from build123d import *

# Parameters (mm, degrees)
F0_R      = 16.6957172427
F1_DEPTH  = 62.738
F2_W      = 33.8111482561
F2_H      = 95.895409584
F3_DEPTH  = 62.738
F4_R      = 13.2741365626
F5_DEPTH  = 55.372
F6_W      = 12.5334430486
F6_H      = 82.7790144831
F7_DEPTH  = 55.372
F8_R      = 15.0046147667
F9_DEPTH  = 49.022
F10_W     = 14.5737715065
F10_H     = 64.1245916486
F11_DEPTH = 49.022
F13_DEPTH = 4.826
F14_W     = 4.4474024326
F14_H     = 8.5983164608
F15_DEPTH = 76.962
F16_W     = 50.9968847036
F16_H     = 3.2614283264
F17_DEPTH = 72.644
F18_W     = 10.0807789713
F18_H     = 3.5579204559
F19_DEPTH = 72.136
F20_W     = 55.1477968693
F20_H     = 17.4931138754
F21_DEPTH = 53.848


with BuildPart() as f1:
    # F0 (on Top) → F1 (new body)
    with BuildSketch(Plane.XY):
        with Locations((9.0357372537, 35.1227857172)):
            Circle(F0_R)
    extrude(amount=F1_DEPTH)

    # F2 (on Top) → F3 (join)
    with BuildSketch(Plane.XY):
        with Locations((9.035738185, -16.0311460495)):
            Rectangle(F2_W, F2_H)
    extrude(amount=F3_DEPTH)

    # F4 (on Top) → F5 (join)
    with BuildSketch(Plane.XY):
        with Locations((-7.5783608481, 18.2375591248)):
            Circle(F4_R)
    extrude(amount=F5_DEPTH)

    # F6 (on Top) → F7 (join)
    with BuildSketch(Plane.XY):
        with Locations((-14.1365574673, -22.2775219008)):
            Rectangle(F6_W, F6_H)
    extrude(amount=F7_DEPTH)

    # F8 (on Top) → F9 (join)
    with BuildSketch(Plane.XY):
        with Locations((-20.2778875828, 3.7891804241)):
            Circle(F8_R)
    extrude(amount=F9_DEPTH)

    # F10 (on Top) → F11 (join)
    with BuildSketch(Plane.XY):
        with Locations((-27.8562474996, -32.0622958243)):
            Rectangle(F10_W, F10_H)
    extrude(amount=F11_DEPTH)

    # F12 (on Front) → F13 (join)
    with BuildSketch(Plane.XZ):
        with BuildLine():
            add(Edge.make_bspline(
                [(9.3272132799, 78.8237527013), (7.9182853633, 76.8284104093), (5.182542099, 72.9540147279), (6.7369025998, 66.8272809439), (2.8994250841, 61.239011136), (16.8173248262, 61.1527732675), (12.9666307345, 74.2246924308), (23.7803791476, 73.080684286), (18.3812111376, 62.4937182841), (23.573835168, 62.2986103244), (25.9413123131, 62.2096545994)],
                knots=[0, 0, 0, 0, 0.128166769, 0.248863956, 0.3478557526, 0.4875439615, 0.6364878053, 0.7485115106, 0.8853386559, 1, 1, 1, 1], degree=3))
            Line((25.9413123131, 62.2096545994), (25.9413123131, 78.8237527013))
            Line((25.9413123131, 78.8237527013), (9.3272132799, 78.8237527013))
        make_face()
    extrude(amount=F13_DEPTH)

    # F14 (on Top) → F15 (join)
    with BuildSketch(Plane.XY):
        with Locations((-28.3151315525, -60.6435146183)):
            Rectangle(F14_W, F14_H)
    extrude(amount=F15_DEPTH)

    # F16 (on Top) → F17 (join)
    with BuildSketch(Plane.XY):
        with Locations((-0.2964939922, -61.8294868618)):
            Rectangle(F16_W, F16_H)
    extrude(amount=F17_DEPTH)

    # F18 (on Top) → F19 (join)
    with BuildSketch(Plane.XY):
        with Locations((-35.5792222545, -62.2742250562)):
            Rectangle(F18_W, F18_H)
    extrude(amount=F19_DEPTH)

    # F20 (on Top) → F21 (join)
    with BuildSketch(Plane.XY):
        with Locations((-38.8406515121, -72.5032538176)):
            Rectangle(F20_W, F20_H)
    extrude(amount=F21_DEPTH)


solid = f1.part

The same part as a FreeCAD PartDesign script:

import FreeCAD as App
import Part
import Sketcher
Q = App.Units.Quantity

doc = App.newDocument("Part")
body = doc.addObject("PartDesign::Body", "Body")

# Sketch on XY plane
sketch1 = doc.addObject("Sketcher::SketchObject", "Sketch")
body.addObject(sketch1)
sketch1.AttachmentSupport = (doc.XY_Plane, [""])
sketch1.MapMode = "FlatFace"
sketch1.addGeometry(Part.Circle(App.Vector(9, 35, 0), App.Vector(0, 0, 1), 17), False)
sketch1.addConstraint(Sketcher.Constraint("Diameter", 0, 33.391434))
sketch1.addConstraint(Sketcher.Constraint("DistanceX", -1, 1, 0, 3, 9.035737))
sketch1.addConstraint(Sketcher.Constraint("DistanceY", -1, 1, 0, 3, 35.122786))
pad1 = doc.addObject("PartDesign::Pad", "Pad")
body.addObject(pad1)
pad1.Profile = sketch1
pad1.Length = Q("2.47 in")

# Sketch on XY plane
sketch2 = doc.addObject("Sketcher::SketchObject", "Sketch001")
body.addObject(sketch2)
sketch2.AttachmentSupport = (doc.XY_Plane, [""])
sketch2.MapMode = "FlatFace"
sketch2.addGeometry(Part.LineSegment(App.Vector(-8, 32, 0), App.Vector(-8, -64, 0)), False)
sketch2.addGeometry(Part.LineSegment(App.Vector(-8, -64, 0), App.Vector(26, -64, 0)), False)
sketch2.addGeometry(Part.LineSegment(App.Vector(26, -64, 0), App.Vector(26, 32, 0)), False)
sketch2.addGeometry(Part.LineSegment(App.Vector(26, 32, 0), App.Vector(-8, 32, 0)), False)
sketch2.addConstraint(Sketcher.Constraint("Coincident", 0, 2, 1, 1))
sketch2.addConstraint(Sketcher.Constraint("Coincident", 1, 2, 2, 1))
sketch2.addConstraint(Sketcher.Constraint("Coincident", 2, 2, 3, 1))
sketch2.addConstraint(Sketcher.Constraint("Coincident", 3, 2, 0, 1))
sketch2.addConstraint(Sketcher.Constraint("Vertical", 0))
sketch2.addConstraint(Sketcher.Constraint("Horizontal", 1))
sketch2.addConstraint(Sketcher.Constraint("Vertical", 2))
sketch2.addConstraint(Sketcher.Constraint("Horizontal", 3))
sketch2.addConstraint(Sketcher.Constraint("DistanceX", 1, 1, 1, 2, 33.811148))
sketch2.addConstraint(Sketcher.Constraint("DistanceY", 0, 2, 0, 1, 95.89541))
sketch2.addConstraint(Sketcher.Constraint("DistanceY", 0, 2, -1, 1, 63.978851))
sketch2.addConstraint(Sketcher.Constraint("DistanceX", 0, 2, -1, 1, 7.869836))
pad2 = doc.addObject("PartDesign::Pad", "Pad001")
body.addObject(pad2)
pad2.Profile = sketch2
pad2.Length = Q("2.47 in")

# Sketch on XY plane
sketch3 = doc.addObject("Sketcher::SketchObject", "Sketch002")
body.addObject(sketch3)
sketch3.AttachmentSupport = (doc.XY_Plane, [""])
sketch3.MapMode = "FlatFace"
sketch3.addGeometry(Part.Circle(App.Vector(-8, 18, 0), App.Vector(0, 0, 1), 13), False)
sketch3.addConstraint(Sketcher.Constraint("Diameter", 0, 26.548273))
sketch3.addConstraint(Sketcher.Constraint("DistanceX", 0, 3, -1, 1, 7.578361))
sketch3.addConstraint(Sketcher.Constraint("DistanceY", -1, 1, 0, 3, 18.237559))
pad3 = doc.addObject("PartDesign::Pad", "Pad002")
body.addObject(pad3)
pad3.Profile = sketch3
pad3.Length = Q("2.18 in")

# Sketch on XY plane
sketch4 = doc.addObject("Sketcher::SketchObject", "Sketch003")
body.addObject(sketch4)
sketch4.AttachmentSupport = (doc.XY_Plane, [""])
sketch4.MapMode = "FlatFace"
sketch4.addGeometry(Part.LineSegment(App.Vector(-20, 19, 0), App.Vector(-20, -64, 0)), False)
sketch4.addGeometry(Part.LineSegment(App.Vector(-20, -64, 0), App.Vector(-8, -64, 0)), False)
sketch4.addGeometry(Part.LineSegment(App.Vector(-8, -64, 0), App.Vector(-8, 19, 0)), False)
sketch4.addGeometry(Part.LineSegment(App.Vector(-8, 19, 0), App.Vector(-20, 19, 0)), False)
sketch4.addConstraint(Sketcher.Constraint("Coincident", 0, 2, 1, 1))
sketch4.addConstraint(Sketcher.Constraint("Coincident", 1, 2, 2, 1))
sketch4.addConstraint(Sketcher.Constraint("Coincident", 2, 2, 3, 1))
sketch4.addConstraint(Sketcher.Constraint("Coincident", 3, 2, 0, 1))
sketch4.addConstraint(Sketcher.Constraint("Vertical", 0))
sketch4.addConstraint(Sketcher.Constraint("Horizontal", 1))
sketch4.addConstraint(Sketcher.Constraint("Vertical", 2))
sketch4.addConstraint(Sketcher.Constraint("Horizontal", 3))
sketch4.addConstraint(Sketcher.Constraint("DistanceX", 1, 1, 1, 2, 12.533443))
sketch4.addConstraint(Sketcher.Constraint("DistanceY", 0, 2, 0, 1, 82.779014))
sketch4.addConstraint(Sketcher.Constraint("DistanceX", 0, 2, -1, 1, 20.403279))
sketch4.addConstraint(Sketcher.Constraint("DistanceY", 0, 2, -1, 1, 63.667029))
pad4 = doc.addObject("PartDesign::Pad", "Pad003")
body.addObject(pad4)
pad4.Profile = sketch4
pad4.Length = Q("2.18 in")

# Sketch on XY plane
sketch5 = doc.addObject("Sketcher::SketchObject", "Sketch004")
body.addObject(sketch5)
sketch5.AttachmentSupport = (doc.XY_Plane, [""])
sketch5.MapMode = "FlatFace"
sketch5.addGeometry(Part.Circle(App.Vector(-20, 4, 0), App.Vector(0, 0, 1), 15), False)
sketch5.addConstraint(Sketcher.Constraint("Diameter", 0, 30.00923))
sketch5.addConstraint(Sketcher.Constraint("DistanceY", -1, 1, 0, 3, 3.78918))
sketch5.addConstraint(Sketcher.Constraint("DistanceX", 0, 3, -1, 1, 20.277888))
pad5 = doc.addObject("PartDesign::Pad", "Pad004")
body.addObject(pad5)
pad5.Profile = sketch5
pad5.Length = Q("1.93 in")

# Sketch on XY plane
sketch6 = doc.addObject("Sketcher::SketchObject", "Sketch005")
body.addObject(sketch6)
sketch6.AttachmentSupport = (doc.XY_Plane, [""])
sketch6.MapMode = "FlatFace"
sketch6.addGeometry(Part.LineSegment(App.Vector(-35, 0, 0), App.Vector(-35, -64, 0)), False)
sketch6.addGeometry(Part.LineSegment(App.Vector(-35, -64, 0), App.Vector(-21, -64, 0)), False)
sketch6.addGeometry(Part.LineSegment(App.Vector(-21, -64, 0), App.Vector(-21, 0, 0)), False)
sketch6.addGeometry(Part.LineSegment(App.Vector(-21, 0, 0), App.Vector(-35, 0, 0)), False)
sketch6.addConstraint(Sketcher.Constraint("Coincident", 0, 2, 1, 1))
sketch6.addConstraint(Sketcher.Constraint("Coincident", 1, 2, 2, 1))
sketch6.addConstraint(Sketcher.Constraint("Coincident", 2, 2, 3, 1))
sketch6.addConstraint(Sketcher.Constraint("Coincident", 3, 2, 0, 1))
sketch6.addConstraint(Sketcher.Constraint("Vertical", 0))
sketch6.addConstraint(Sketcher.Constraint("Horizontal", 1))
sketch6.addConstraint(Sketcher.Constraint("Vertical", 2))
sketch6.addConstraint(Sketcher.Constraint("Horizontal", 3))
sketch6.addConstraint(Sketcher.Constraint("PointOnObject", 2, 2, -1))
sketch6.addConstraint(Sketcher.Constraint("DistanceX", 1, 1, 1, 2, 14.573772))
sketch6.addConstraint(Sketcher.Constraint("DistanceY", 0, 2, 0, 1, 64.124592))
sketch6.addConstraint(Sketcher.Constraint("DistanceX", 1, 2, -1, 1, 20.569362))
pad6 = doc.addObject("PartDesign::Pad", "Pad005")
body.addObject(pad6)
pad6.Profile = sketch6
pad6.Length = Q("1.93 in")

# Sketch on XZ plane
sketch7 = doc.addObject("Sketcher::SketchObject", "Sketch006")
body.addObject(sketch7)
sketch7.AttachmentSupport = (doc.XZ_Plane, [""])
sketch7.MapMode = "FlatFace"
sketch7.addGeometry(Part.BSplineCurve([App.Vector(9.327213, 78.823753, 0), App.Vector(7.918285, 76.82841, 0), App.Vector(5.182542, 72.954015, 0), App.Vector(6.736903, 66.827281, 0), App.Vector(2.899425, 61.239011, 0), App.Vector(16.817325, 61.152773, 0), App.Vector(12.966631, 74.224692, 0), App.Vector(23.780379, 73.080684, 0), App.Vector(18.381211, 62.493718, 0), App.Vector(23.573835, 62.29861, 0), App.Vector(25.941312, 62.209655, 0)], [4, 1, 1, 1, 1, 1, 1, 1, 4], [0, 0.128166769, 0.248863956, 0.347855753, 0.487543962, 0.636487805, 0.748511511, 0.885338656, 1], False, 3, [1, 1, 1, 1, 1, 1, 1, 1, 1, 1, 1], False), False)
sketch7.addGeometry(Part.LineSegment(App.Vector(25.941312, 62.209655, 0), App.Vector(25.941312, 78.823753, 0)), False)
sketch7.addGeometry(Part.LineSegment(App.Vector(25.941312, 78.823753, 0), App.Vector(9.327213, 78.823753, 0)), False)
sketch7.addConstraint(Sketcher.Constraint("Block", 0))
sketch7.addConstraint(Sketcher.Constraint("Coincident", 0, 2, 1, 1))
sketch7.addConstraint(Sketcher.Constraint("Coincident", 1, 2, 2, 1))
sketch7.addConstraint(Sketcher.Constraint("Coincident", 2, 2, 0, 1))
sketch7.addConstraint(Sketcher.Constraint("Vertical", 1))
sketch7.addConstraint(Sketcher.Constraint("Horizontal", 2))
pad7 = doc.addObject("PartDesign::Pad", "Pad006")
body.addObject(pad7)
pad7.Profile = sketch7
pad7.Length = Q("0.19 in")

# Sketch on XY plane
sketch8 = doc.addObject("Sketcher::SketchObject", "Sketch007")
body.addObject(sketch8)
sketch8.AttachmentSupport = (doc.XY_Plane, [""])
sketch8.MapMode = "FlatFace"
sketch8.addGeometry(Part.LineSegment(App.Vector(-30.5, -56.3, 0), App.Vector(-30.5, -64.9, 0)), False)
sketch8.addGeometry(Part.LineSegment(App.Vector(-30.5, -64.9, 0), App.Vector(-26.1, -64.9, 0)), False)
sketch8.addGeometry(Part.LineSegment(App.Vector(-26.1, -64.9, 0), App.Vector(-26.1, -56.3, 0)), False)
sketch8.addGeometry(Part.LineSegment(App.Vector(-26.1, -56.3, 0), App.Vector(-30.5, -56.3, 0)), False)
sketch8.addConstraint(Sketcher.Constraint("Coincident", 0, 2, 1, 1))
sketch8.addConstraint(Sketcher.Constraint("Coincident", 1, 2, 2, 1))
sketch8.addConstraint(Sketcher.Constraint("Coincident", 2, 2, 3, 1))
sketch8.addConstraint(Sketcher.Constraint("Coincident", 3, 2, 0, 1))
sketch8.addConstraint(Sketcher.Constraint("Vertical", 0))
sketch8.addConstraint(Sketcher.Constraint("Horizontal", 1))
sketch8.addConstraint(Sketcher.Constraint("Vertical", 2))
sketch8.addConstraint(Sketcher.Constraint("Horizontal", 3))
sketch8.addConstraint(Sketcher.Constraint("DistanceX", 1, 1, 1, 2, 4.447402))
sketch8.addConstraint(Sketcher.Constraint("DistanceY", 0, 2, 0, 1, 8.598316))
sketch8.addConstraint(Sketcher.Constraint("DistanceX", 1, 2, -1, 1, 26.09143))
sketch8.addConstraint(Sketcher.Constraint("DistanceY", 0, 2, -1, 1, 64.942673))
pad8 = doc.addObject("PartDesign::Pad", "Pad007")
body.addObject(pad8)
pad8.Profile = sketch8
pad8.Length = Q("3.03 in")

# Sketch on XY plane
sketch9 = doc.addObject("Sketcher::SketchObject", "Sketch008")
body.addObject(sketch9)
sketch9.AttachmentSupport = (doc.XY_Plane, [""])
sketch9.MapMode = "FlatFace"
sketch9.addGeometry(Part.LineSegment(App.Vector(-25.8, -60.2, 0), App.Vector(-25.8, -63.5, 0)), False)
sketch9.addGeometry(Part.LineSegment(App.Vector(-25.8, -63.5, 0), App.Vector(25.2, -63.5, 0)), False)
sketch9.addGeometry(Part.LineSegment(App.Vector(25.2, -63.5, 0), App.Vector(25.2, -60.2, 0)), False)
sketch9.addGeometry(Part.LineSegment(App.Vector(25.2, -60.2, 0), App.Vector(-25.8, -60.2, 0)), False)
sketch9.addConstraint(Sketcher.Constraint("Coincident", 0, 2, 1, 1))
sketch9.addConstraint(Sketcher.Constraint("Coincident", 1, 2, 2, 1))
sketch9.addConstraint(Sketcher.Constraint("Coincident", 2, 2, 3, 1))
sketch9.addConstraint(Sketcher.Constraint("Coincident", 3, 2, 0, 1))
sketch9.addConstraint(Sketcher.Constraint("Vertical", 0))
sketch9.addConstraint(Sketcher.Constraint("Horizontal", 1))
sketch9.addConstraint(Sketcher.Constraint("Vertical", 2))
sketch9.addConstraint(Sketcher.Constraint("Horizontal", 3))
sketch9.addConstraint(Sketcher.Constraint("DistanceY", 0, 2, 0, 1, 3.261428))
sketch9.addConstraint(Sketcher.Constraint("DistanceY", 0, 2, -1, 1, 63.460201))
sketch9.addConstraint(Sketcher.Constraint("DistanceX", 1, 1, 1, 2, 50.996885))
sketch9.addConstraint(Sketcher.Constraint("DistanceX", -1, 1, 1, 2, 25.201948))
pad9 = doc.addObject("PartDesign::Pad", "Pad008")
body.addObject(pad9)
pad9.Profile = sketch9
pad9.Length = Q("2.86 in")

# Sketch on XY plane
sketch10 = doc.addObject("Sketcher::SketchObject", "Sketch009")
body.addObject(sketch10)
sketch10.AttachmentSupport = (doc.XY_Plane, [""])
sketch10.MapMode = "FlatFace"
sketch10.addGeometry(Part.LineSegment(App.Vector(-40.6, -60.5, 0), App.Vector(-40.6, -64.1, 0)), False)
sketch10.addGeometry(Part.LineSegment(App.Vector(-40.6, -64.1, 0), App.Vector(-30.5, -64.1, 0)), False)
sketch10.addGeometry(Part.LineSegment(App.Vector(-30.5, -64.1, 0), App.Vector(-30.5, -60.5, 0)), False)
sketch10.addGeometry(Part.LineSegment(App.Vector(-30.5, -60.5, 0), App.Vector(-40.6, -60.5, 0)), False)
sketch10.addConstraint(Sketcher.Constraint("Coincident", 0, 2, 1, 1))
sketch10.addConstraint(Sketcher.Constraint("Coincident", 1, 2, 2, 1))
sketch10.addConstraint(Sketcher.Constraint("Coincident", 2, 2, 3, 1))
sketch10.addConstraint(Sketcher.Constraint("Coincident", 3, 2, 0, 1))
sketch10.addConstraint(Sketcher.Constraint("Vertical", 0))
sketch10.addConstraint(Sketcher.Constraint("Horizontal", 1))
sketch10.addConstraint(Sketcher.Constraint("Vertical", 2))
sketch10.addConstraint(Sketcher.Constraint("Horizontal", 3))
sketch10.addConstraint(Sketcher.Constraint("DistanceX", 1, 1, 1, 2, 10.080779))
sketch10.addConstraint(Sketcher.Constraint("DistanceY", 0, 2, 0, 1, 3.55792))
sketch10.addConstraint(Sketcher.Constraint("DistanceX", 0, 2, -1, 1, 40.619612))
sketch10.addConstraint(Sketcher.Constraint("DistanceY", 0, 2, -1, 1, 64.053185))
pad10 = doc.addObject("PartDesign::Pad", "Pad009")
body.addObject(pad10)
pad10.Profile = sketch10
pad10.Length = Q("2.84 in")

# Sketch on XY plane
sketch11 = doc.addObject("Sketcher::SketchObject", "Sketch010")
body.addObject(sketch11)
sketch11.AttachmentSupport = (doc.XY_Plane, [""])
sketch11.MapMode = "FlatFace"
sketch11.addGeometry(Part.LineSegment(App.Vector(-66, -64, 0), App.Vector(-66, -81, 0)), False)
sketch11.addGeometry(Part.LineSegment(App.Vector(-66, -81, 0), App.Vector(-11, -81, 0)), False)
sketch11.addGeometry(Part.LineSegment(App.Vector(-11, -81, 0), App.Vector(-11, -64, 0)), False)
sketch11.addGeometry(Part.LineSegment(App.Vector(-11, -64, 0), App.Vector(-66, -64, 0)), False)
sketch11.addConstraint(Sketcher.Constraint("Coincident", 0, 2, 1, 1))
sketch11.addConstraint(Sketcher.Constraint("Coincident", 1, 2, 2, 1))
sketch11.addConstraint(Sketcher.Constraint("Coincident", 2, 2, 3, 1))
sketch11.addConstraint(Sketcher.Constraint("Coincident", 3, 2, 0, 1))
sketch11.addConstraint(Sketcher.Constraint("Vertical", 0))
sketch11.addConstraint(Sketcher.Constraint("Horizontal", 1))
sketch11.addConstraint(Sketcher.Constraint("Vertical", 2))
sketch11.addConstraint(Sketcher.Constraint("Horizontal", 3))
sketch11.addConstraint(Sketcher.Constraint("DistanceX", 1, 1, 1, 2, 55.147797))
sketch11.addConstraint(Sketcher.Constraint("DistanceY", 0, 2, 0, 1, 17.493114))
sketch11.addConstraint(Sketcher.Constraint("DistanceX", 0, 2, -1, 1, 66.41455))
sketch11.addConstraint(Sketcher.Constraint("DistanceY", 0, 2, -1, 1, 81.249811))
pad11 = doc.addObject("PartDesign::Pad", "Pad010")
body.addObject(pad11)
pad11.Profile = sketch11
pad11.Length = Q("2.12 in")

doc.recompute()
